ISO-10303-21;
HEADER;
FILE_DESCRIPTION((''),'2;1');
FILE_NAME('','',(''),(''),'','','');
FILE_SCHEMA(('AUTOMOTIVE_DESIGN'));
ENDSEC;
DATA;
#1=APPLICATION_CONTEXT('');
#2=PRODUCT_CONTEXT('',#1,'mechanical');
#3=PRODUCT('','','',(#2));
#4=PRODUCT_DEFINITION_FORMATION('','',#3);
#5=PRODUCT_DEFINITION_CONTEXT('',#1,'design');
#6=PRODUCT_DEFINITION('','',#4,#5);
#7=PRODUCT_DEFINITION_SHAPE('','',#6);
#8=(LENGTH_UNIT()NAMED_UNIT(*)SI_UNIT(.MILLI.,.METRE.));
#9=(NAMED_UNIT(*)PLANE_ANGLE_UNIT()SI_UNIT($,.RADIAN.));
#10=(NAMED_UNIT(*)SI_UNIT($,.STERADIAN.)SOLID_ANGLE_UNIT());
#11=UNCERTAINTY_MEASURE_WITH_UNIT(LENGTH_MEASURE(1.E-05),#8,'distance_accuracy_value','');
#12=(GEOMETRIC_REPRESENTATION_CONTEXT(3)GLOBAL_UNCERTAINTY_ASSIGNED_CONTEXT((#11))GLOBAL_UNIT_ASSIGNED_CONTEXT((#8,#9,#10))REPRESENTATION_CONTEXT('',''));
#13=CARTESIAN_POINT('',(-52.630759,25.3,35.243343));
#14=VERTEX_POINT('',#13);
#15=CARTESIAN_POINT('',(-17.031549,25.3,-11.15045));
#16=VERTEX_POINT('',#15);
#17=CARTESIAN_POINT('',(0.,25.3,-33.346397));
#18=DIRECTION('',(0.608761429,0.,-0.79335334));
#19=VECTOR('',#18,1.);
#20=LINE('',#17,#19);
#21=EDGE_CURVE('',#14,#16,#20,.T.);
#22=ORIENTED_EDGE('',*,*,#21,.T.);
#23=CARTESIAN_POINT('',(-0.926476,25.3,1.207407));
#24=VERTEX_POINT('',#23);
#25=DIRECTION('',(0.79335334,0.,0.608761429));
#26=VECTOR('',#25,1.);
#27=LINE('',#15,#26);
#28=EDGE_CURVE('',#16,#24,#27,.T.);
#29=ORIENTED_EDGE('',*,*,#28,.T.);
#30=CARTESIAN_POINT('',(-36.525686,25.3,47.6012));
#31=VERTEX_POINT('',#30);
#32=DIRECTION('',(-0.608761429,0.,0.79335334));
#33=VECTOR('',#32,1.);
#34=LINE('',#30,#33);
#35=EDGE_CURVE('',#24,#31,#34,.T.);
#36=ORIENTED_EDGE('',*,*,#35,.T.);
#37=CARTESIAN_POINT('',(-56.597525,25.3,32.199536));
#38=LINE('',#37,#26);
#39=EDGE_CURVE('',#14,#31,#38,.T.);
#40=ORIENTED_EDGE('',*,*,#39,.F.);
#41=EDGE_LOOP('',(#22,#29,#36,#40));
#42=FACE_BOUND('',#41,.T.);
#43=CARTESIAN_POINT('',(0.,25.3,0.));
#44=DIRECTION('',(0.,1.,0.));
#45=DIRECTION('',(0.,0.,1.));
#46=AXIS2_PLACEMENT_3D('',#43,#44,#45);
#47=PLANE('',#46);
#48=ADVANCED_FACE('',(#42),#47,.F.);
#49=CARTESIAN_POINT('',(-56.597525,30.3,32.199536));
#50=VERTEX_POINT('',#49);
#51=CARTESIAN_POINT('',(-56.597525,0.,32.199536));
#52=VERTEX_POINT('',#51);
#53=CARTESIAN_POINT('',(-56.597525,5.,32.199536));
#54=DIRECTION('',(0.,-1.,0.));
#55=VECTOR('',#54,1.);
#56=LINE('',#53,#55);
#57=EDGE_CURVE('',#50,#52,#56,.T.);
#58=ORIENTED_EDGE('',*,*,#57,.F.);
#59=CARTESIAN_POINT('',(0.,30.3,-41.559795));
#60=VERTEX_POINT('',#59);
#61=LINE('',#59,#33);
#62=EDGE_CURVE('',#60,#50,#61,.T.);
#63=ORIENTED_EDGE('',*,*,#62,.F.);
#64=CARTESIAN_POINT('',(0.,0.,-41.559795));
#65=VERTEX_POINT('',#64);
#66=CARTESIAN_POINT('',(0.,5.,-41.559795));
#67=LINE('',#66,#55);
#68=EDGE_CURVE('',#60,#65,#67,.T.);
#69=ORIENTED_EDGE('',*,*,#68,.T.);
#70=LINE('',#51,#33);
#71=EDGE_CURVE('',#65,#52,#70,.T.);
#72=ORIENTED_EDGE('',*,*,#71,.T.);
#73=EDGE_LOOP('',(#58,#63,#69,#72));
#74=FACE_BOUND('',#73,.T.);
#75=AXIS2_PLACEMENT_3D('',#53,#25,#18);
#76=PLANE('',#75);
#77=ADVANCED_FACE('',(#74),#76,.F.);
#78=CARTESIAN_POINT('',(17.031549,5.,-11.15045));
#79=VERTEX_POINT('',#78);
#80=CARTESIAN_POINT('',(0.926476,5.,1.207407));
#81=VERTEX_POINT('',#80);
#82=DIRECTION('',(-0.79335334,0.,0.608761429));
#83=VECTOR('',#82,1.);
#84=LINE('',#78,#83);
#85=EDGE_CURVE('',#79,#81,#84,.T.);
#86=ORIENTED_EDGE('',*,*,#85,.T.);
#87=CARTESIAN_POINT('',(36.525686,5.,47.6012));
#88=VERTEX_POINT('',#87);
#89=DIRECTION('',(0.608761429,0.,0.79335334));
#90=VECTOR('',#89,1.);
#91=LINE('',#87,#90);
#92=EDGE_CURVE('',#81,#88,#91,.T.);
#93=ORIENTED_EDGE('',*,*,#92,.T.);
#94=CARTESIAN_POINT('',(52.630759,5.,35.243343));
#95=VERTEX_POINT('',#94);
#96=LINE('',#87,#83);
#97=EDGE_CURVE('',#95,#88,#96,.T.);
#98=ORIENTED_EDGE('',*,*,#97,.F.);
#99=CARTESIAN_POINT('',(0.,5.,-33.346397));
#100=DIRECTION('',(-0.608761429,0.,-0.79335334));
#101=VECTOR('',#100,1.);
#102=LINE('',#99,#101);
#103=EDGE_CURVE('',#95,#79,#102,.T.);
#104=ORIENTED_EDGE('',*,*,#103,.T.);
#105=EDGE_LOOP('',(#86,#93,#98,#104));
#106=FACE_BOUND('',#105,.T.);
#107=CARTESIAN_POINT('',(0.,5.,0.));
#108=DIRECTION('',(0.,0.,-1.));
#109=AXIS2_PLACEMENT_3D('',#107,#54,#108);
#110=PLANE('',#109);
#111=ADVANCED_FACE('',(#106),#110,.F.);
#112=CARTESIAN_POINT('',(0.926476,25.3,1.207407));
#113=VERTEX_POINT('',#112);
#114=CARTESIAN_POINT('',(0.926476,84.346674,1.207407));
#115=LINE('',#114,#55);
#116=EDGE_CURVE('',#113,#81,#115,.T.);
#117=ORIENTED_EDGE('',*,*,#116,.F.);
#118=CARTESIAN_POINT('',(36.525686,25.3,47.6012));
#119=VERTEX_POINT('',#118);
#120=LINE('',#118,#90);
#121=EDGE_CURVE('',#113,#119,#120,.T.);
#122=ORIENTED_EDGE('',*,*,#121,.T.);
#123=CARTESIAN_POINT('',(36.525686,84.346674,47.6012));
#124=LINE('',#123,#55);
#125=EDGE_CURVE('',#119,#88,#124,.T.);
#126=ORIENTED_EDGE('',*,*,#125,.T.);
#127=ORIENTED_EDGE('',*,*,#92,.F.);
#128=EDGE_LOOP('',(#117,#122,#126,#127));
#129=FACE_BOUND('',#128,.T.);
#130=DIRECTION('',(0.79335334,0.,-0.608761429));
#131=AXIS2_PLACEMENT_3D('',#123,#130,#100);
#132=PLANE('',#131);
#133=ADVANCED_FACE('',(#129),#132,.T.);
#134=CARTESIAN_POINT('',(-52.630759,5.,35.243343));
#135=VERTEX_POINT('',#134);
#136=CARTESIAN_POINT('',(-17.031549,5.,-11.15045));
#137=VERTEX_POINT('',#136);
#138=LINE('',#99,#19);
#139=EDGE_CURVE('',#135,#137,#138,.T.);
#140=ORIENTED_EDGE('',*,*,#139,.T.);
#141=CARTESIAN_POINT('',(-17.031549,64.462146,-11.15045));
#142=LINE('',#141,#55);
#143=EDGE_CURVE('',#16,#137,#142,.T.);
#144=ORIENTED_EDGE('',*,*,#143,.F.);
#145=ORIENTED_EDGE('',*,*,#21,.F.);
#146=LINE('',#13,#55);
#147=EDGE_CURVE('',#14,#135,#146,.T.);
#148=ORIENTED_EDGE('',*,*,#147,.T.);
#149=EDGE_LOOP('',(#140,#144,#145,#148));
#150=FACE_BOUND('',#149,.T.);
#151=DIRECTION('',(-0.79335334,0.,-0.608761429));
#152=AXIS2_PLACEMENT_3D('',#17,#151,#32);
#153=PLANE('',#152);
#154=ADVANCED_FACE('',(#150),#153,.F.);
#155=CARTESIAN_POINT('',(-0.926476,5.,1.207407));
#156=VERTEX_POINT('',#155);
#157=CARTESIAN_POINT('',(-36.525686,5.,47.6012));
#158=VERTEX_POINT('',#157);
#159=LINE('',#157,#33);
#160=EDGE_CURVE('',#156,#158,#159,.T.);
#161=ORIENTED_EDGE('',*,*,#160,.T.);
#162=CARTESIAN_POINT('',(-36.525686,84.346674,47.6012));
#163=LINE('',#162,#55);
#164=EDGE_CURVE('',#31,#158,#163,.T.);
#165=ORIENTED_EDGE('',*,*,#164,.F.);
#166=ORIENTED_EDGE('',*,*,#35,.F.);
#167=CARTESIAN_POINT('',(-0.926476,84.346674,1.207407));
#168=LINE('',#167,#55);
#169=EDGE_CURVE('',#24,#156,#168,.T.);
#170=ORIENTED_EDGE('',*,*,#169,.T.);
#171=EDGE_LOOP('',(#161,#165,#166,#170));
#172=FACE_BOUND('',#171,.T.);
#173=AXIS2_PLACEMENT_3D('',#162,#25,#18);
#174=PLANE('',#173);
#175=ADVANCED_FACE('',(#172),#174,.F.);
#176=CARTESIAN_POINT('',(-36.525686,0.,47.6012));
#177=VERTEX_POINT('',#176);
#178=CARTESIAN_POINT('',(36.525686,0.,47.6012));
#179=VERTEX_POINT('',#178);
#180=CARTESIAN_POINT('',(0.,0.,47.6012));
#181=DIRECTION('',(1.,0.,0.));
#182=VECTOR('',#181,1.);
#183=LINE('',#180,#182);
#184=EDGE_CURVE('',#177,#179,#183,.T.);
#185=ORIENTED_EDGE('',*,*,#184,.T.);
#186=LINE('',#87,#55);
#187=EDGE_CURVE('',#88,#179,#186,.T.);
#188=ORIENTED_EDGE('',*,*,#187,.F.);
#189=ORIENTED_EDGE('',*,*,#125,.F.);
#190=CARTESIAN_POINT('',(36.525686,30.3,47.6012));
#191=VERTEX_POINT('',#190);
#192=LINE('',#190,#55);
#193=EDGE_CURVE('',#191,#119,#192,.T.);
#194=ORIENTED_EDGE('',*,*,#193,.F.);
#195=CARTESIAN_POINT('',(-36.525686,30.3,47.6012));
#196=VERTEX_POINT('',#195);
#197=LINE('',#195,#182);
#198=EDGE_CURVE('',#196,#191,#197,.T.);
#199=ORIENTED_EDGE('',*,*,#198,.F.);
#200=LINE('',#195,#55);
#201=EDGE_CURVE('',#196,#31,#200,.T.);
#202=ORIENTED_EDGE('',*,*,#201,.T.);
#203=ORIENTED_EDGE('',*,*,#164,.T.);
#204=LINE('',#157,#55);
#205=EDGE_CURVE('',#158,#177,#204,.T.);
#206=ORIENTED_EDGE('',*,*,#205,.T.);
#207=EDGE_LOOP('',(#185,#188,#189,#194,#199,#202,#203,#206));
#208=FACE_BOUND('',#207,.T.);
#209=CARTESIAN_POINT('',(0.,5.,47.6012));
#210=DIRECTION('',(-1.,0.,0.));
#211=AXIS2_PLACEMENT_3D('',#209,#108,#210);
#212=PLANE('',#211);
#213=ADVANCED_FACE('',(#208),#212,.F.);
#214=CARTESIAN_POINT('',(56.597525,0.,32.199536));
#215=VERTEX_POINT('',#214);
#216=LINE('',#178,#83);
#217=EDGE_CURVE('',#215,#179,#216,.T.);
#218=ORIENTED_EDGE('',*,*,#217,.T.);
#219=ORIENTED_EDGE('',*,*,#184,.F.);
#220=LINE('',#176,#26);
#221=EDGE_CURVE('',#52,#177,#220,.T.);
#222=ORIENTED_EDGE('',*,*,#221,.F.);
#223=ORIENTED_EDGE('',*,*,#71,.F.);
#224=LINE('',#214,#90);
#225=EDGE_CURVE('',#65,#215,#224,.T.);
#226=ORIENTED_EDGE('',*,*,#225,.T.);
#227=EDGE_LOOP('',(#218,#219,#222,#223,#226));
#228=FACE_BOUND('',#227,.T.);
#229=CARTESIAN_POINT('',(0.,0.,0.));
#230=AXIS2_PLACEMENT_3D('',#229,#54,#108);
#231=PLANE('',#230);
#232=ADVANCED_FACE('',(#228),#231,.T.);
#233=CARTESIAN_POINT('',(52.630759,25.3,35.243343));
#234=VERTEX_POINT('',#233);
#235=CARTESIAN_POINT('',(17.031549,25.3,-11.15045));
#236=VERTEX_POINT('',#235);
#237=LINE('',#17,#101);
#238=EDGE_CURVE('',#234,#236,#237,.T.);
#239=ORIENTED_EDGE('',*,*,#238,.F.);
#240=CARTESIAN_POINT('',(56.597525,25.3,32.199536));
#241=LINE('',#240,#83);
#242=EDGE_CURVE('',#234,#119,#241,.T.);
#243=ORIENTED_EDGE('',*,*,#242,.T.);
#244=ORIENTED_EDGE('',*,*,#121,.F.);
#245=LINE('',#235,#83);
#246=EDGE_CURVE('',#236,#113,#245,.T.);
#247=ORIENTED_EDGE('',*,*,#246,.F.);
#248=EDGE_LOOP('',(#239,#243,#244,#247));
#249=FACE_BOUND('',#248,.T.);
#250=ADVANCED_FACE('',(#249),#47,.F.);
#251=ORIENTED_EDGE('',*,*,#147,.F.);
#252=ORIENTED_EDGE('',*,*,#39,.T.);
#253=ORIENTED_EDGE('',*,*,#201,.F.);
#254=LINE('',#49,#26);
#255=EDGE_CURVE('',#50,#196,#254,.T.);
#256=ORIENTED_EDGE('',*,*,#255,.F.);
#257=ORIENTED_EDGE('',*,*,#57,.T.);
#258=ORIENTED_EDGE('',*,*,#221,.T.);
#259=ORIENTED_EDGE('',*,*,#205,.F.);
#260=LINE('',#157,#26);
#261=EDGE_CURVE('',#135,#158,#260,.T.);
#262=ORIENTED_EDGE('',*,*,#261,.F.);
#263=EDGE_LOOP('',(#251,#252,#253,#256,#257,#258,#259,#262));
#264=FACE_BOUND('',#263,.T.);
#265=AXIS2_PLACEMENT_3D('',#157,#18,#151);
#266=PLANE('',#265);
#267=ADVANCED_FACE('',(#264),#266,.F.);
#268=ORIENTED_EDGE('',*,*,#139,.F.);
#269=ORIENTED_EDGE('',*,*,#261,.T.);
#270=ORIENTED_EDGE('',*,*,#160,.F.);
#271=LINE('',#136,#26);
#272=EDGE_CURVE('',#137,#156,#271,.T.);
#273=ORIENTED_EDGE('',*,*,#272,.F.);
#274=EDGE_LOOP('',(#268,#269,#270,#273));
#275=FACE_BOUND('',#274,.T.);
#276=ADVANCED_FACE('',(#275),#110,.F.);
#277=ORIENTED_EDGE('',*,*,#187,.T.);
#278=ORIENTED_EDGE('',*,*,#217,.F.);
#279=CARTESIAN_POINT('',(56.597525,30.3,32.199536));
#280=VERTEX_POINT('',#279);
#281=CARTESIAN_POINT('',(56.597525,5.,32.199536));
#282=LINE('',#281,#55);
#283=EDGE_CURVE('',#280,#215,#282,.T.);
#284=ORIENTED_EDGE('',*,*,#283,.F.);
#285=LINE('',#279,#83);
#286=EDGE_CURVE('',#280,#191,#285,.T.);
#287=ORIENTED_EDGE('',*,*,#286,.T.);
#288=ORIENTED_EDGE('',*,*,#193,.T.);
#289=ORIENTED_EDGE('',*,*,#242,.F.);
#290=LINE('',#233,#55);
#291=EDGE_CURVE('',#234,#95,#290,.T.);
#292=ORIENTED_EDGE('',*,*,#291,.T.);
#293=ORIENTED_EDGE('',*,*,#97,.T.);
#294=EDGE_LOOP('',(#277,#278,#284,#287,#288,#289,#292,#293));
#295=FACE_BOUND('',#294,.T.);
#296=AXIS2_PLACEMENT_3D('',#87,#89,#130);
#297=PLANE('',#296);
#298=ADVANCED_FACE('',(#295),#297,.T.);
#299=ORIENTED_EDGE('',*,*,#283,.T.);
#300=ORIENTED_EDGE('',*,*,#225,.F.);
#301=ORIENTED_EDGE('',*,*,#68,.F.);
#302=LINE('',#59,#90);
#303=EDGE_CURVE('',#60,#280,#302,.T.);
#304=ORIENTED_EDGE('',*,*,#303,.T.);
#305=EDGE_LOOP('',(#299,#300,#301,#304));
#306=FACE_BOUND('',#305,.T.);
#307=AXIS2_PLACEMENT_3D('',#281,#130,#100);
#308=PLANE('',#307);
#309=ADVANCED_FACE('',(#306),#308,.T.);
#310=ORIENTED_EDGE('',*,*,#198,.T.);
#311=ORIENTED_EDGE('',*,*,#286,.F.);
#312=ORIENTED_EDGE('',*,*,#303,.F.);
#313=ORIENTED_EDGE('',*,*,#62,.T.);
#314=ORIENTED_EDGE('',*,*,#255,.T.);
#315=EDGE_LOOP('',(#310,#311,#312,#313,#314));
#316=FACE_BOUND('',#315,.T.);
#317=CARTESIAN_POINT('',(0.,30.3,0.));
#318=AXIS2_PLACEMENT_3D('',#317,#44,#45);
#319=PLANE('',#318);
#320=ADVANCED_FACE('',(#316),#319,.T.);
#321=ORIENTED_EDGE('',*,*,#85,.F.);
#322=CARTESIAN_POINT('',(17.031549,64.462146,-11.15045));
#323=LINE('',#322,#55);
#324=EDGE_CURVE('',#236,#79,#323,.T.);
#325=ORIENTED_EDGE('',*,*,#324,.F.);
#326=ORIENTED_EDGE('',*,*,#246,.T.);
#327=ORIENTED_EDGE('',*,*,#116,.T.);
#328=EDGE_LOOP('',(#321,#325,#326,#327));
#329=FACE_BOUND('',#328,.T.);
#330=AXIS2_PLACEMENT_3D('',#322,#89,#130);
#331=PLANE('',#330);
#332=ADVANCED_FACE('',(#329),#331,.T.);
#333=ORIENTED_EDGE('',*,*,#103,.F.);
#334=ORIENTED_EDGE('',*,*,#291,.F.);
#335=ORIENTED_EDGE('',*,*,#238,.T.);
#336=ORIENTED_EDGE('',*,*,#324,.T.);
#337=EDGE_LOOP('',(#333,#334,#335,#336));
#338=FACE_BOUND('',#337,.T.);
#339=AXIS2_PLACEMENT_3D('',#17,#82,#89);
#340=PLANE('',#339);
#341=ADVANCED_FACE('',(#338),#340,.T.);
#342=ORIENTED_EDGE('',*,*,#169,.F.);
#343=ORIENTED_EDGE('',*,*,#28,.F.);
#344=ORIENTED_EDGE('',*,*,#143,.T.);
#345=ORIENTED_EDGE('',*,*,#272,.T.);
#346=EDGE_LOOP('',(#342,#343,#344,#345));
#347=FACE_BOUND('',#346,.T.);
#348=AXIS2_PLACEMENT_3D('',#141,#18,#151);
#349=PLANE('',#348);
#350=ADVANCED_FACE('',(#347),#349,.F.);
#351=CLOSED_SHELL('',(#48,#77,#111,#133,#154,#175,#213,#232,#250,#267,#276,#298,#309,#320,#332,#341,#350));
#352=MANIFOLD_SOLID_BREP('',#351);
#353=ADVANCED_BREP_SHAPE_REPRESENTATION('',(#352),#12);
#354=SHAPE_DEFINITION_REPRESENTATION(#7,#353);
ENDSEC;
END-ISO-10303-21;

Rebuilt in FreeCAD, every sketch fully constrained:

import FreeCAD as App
import Part
import Sketcher

V = App.Vector
Q = App.Units.Quantity

doc = App.newDocument("Part")
body = doc.addObject("PartDesign::Body", "Body")

sketch1 = body.newObject("Sketcher::SketchObject", "Sketch")
sketch1.AttachmentSupport = (doc.getObject("XZ_Plane"), [""])
sketch1.MapMode = "FlatFace"
sketch1.addGeometry([
    Part.LineSegment(V(0, -42, 0), V(-57, 32, 0)),
    Part.LineSegment(V(-57, 32, 0), V(-37, 48, 0)),
    Part.LineSegment(V(-37, 48, 0), V(0, 48, 0)),
    Part.LineSegment(V(0, 48, 0), V(0, -42, 0)),
], False)
sketch1.addConstraint([
    Sketcher.Constraint("Coincident", 0, 2, 1, 1),
    Sketcher.Constraint("Coincident", 1, 2, 2, 1),
    Sketcher.Constraint("Coincident", 2, 2, 3, 1),
    Sketcher.Constraint("Coincident", 3, 2, 0, 1),
    Sketcher.Constraint("Horizontal", 2),
    Sketcher.Constraint("Vertical", 3),
    Sketcher.Constraint("PointOnObject", 2, 2, -2),
    Sketcher.Constraint("Perpendicular", 0, 1),
    Sketcher.Constraint("Angle", 0, Q("127.5 deg")),
    Sketcher.Constraint("Distance", 1, Q("25.3 mm")),
    Sketcher.Constraint("Distance", 0, Q("92.971602 mm")),
    Sketcher.Constraint("DistanceY", -1, 1, 1, 2, Q("47.6012 mm")),
])
pad1 = body.newObject("PartDesign::Pad", "Pad")
pad1.Profile = sketch1
pad1.Length = 5
pad1.Reversed = True

sketch2 = body.newObject("Sketcher::SketchObject", "Sketch001")
sketch2.AttachmentSupport = (doc.getObject("XZ_Plane"), [""])
sketch2.MapMode = "FlatFace"
sketch2.AttachmentOffset = App.Placement(V(0, 0, -5), App.Rotation())
sketch2.addGeometry([
    Part.LineSegment(V(-57, 32, 0), V(-53, 35, 0)),
    Part.LineSegment(V(-53, 35, 0), V(0, -33, 0)),
    Part.LineSegment(V(0, -33, 0), V(0, -42, 0)),
    Part.LineSegment(V(0, -42, 0), V(-57, 32, 0)),
], False)
sketch2.addConstraint([
    Sketcher.Constraint("Coincident", 0, 2, 1, 1),
    Sketcher.Constraint("Coincident", 1, 2, 2, 1),
    Sketcher.Constraint("Coincident", 2, 2, 3, 1),
    Sketcher.Constraint("Coincident", 3, 2, 0, 1),
    Sketcher.Constraint("Vertical", 2),
    Sketcher.Constraint("PointOnObject", 1, 2, -2),
    Sketcher.Constraint("Perpendicular", 0, 1),
    Sketcher.Constraint("Parallel", 1, 3),
    Sketcher.Constraint("Distance", 0, Q("5 mm")),
    Sketcher.Constraint("Angle", 0, Q("37.5 deg")),
    Sketcher.Constraint("Distance", 3, Q("92.971602 mm")),
    Sketcher.Constraint("DistanceY", -1, 1, 0, 2, Q("35.243343 mm")),
])
pad2 = body.newObject("PartDesign::Pad", "Pad001")
pad2.Profile = sketch2
pad2.Length = 20.3
pad2.Reversed = True

sketch3 = body.newObject("Sketcher::SketchObject", "Sketch002")
sketch3.AttachmentSupport = (doc.getObject("XZ_Plane"), [""])
sketch3.MapMode = "FlatFace"
sketch3.AttachmentOffset = App.Placement(V(0, 0, -25.3), App.Rotation())
sketch3.addGeometry([
    Part.LineSegment(V(-57, 32, 0), V(-37, 48, 0)),
    Part.LineSegment(V(-37, 48, 0), V(0, 48, 0)),
    Part.LineSegment(V(0, 48, 0), V(0, -42, 0)),
    Part.LineSegment(V(0, -42, 0), V(-57, 32, 0)),
], False)
sketch3.addConstraint([
    Sketcher.Constraint("Coincident", 0, 2, 1, 1),
    Sketcher.Constraint("Coincident", 1, 2, 2, 1),
    Sketcher.Constraint("Coincident", 2, 2, 3, 1),
    Sketcher.Constraint("Coincident", 3, 2, 0, 1),
    Sketcher.Constraint("Horizontal", 1),
    Sketcher.Constraint("Vertical", 2),
    Sketcher.Constraint("PointOnObject", 1, 2, -2),
    Sketcher.Constraint("Perpendicular", 0, 3),
    Sketcher.Constraint("Angle", 0, Q("37.5 deg")),
    Sketcher.Constraint("Distance", 0, Q("25.3 mm")),
    Sketcher.Constraint("Distance", 3, Q("92.971602 mm")),
    Sketcher.Constraint("DistanceY", -1, 1, 0, 2, Q("47.6012 mm")),
])
pad3 = body.newObject("PartDesign::Pad", "Pad002")
pad3.Profile = sketch3
pad3.Length = 5
pad3.Reversed = True

sketch4 = body.newObject("Sketcher::SketchObject", "Sketch003")
sketch4.AttachmentSupport = (doc.getObject("XZ_Plane"), [""])
sketch4.MapMode = "FlatFace"
sketch4.AttachmentOffset = App.Placement(V(0, 0, -5), App.Rotation())
sketch4.addGeometry([
    Part.LineSegment(V(-17, -11, 0), V(0, 2, 0)),
    Part.LineSegment(V(0, 2, 0), V(0, -33, 0)),
    Part.LineSegment(V(0, -33, 0), V(-17, -11, 0)),
], False)
sketch4.addConstraint([
    Sketcher.Constraint("Coincident", 0, 2, 1, 1),
    Sketcher.Constraint("Coincident", 1, 2, 2, 1),
    Sketcher.Constraint("Coincident", 2, 2, 0, 1),
    Sketcher.Constraint("Vertical", 1),
    Sketcher.Constraint("PointOnObject", 0, 2, -2),
    Sketcher.Constraint("Perpendicular", 0, 2),
    Sketcher.Constraint("Angle", 0, Q("37.5 deg")),
    Sketcher.Constraint("Distance", 2, Q("27.977379 mm")),
    Sketcher.Constraint("DistanceY", 2, 2, -1, 1, Q("11.15045 mm")),
])
pad4 = body.newObject("PartDesign::Pad", "Pad003")
pad4.Profile = sketch4
pad4.Length = 20.3
pad4.Reversed = True

sketch5 = body.newObject("Sketcher::SketchObject", "Sketch004")
sketch5.AttachmentSupport = (doc.getObject("XZ_Plane"), [""])
sketch5.MapMode = "FlatFace"
sketch5.AttachmentOffset = App.Placement(V(0, 0, -5), App.Rotation())
sketch5.addGeometry([
    Part.LineSegment(V(-0.9, 1.2, 0), V(-36.5, 47.6, 0)),
    Part.LineSegment(V(-36.5, 47.6, 0), V(0, 47.6, 0)),
    Part.LineSegment(V(0, 47.6, 0), V(0, 1.9, 0)),
    Part.LineSegment(V(0, 1.9, 0), V(-0.9, 1.2, 0)),
], False)
sketch5.addConstraint([
    Sketcher.Constraint("Coincident", 0, 2, 1, 1),
    Sketcher.Constraint("Coincident", 1, 2, 2, 1),
    Sketcher.Constraint("Coincident", 2, 2, 3, 1),
    Sketcher.Constraint("Coincident", 3, 2, 0, 1),
    Sketcher.Constraint("Horizontal", 1),
    Sketcher.Constraint("Vertical", 2),
    Sketcher.Constraint("PointOnObject", 1, 2, -2),
    Sketcher.Constraint("Perpendicular", 0, 3),
    Sketcher.Constraint("Angle", 0, Q("127.5 deg")),
    Sketcher.Constraint("DistanceY", -1, 1, 0, 2, Q("47.6012 mm")),
    Sketcher.Constraint("DistanceX", 1, 1, 1, 2, Q("36.525686 mm")),
    Sketcher.Constraint("DistanceY", 2, 2, 2, 1, Q("45.682883 mm")),
])
pad5 = body.newObject("PartDesign::Pad", "Pad004")
pad5.Profile = sketch5
pad5.Length = 20.3
pad5.Reversed = True
doc.recompute()

mirrored = body.newObject("PartDesign::Mirrored", "Mirrored")
mirrored.Originals = [pad1, pad2, pad3, pad4, pad5]
mirrored.MirrorPlane = (doc.getObject("YZ_Plane"), [""])
body.Tip = mirrored

doc.recompute()
